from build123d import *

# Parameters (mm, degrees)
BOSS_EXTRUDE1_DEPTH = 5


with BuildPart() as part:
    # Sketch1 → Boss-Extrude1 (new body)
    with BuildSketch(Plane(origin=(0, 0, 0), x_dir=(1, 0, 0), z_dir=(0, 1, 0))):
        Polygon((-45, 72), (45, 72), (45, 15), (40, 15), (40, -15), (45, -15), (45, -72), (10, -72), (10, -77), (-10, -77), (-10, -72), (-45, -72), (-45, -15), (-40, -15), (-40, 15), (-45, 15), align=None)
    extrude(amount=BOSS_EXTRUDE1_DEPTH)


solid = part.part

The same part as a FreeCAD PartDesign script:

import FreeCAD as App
import Part
import Sketcher

V = App.Vector


def add_polygon(sketch, points):
    """Adds a closed chain of lines whose ends are joined by coincident constraints."""
    first, n = sketch.GeometryCount, len(points)
    for a, b in zip(points, points[1:] + points[:1]):
        sketch.addGeometry(Part.LineSegment(App.Vector(*a, 0), App.Vector(*b, 0)), False)
    for i in range(n):
        sketch.addConstraint(Sketcher.Constraint("Coincident", first + i, 2, first + (i + 1) % n, 1))

doc = App.newDocument("Part")
body = doc.addObject("PartDesign::Body", "Body")

sketch1 = doc.addObject("Sketcher::SketchObject", "Sketch")
body.addObject(sketch1)
sketch1.AttachmentSupport = (doc.XZ_Plane, [""])
sketch1.MapMode = "FlatFace"
add_polygon(sketch1, [(45, -72), (-45, -72), (-45, -15), (-40, -15), (-40, 15), (-45, 15), (-45, 72), (-10, 72), (-10, 77), (10, 77), (10, 72), (45, 72), (45, 15), (40, 15), (40, -15), (45, -15)])
sketch1.addConstraint([
    Sketcher.Constraint("Horizontal", 0),
    Sketcher.Constraint("Vertical", 1),
    Sketcher.Constraint("Horizontal", 2),
    Sketcher.Constraint("Vertical", 3),
    Sketcher.Constraint("Horizontal", 4),
    Sketcher.Constraint("Vertical", 5),
    Sketcher.Constraint("Horizontal", 6),
    Sketcher.Constraint("Vertical", 7),
    Sketcher.Constraint("Horizontal", 8),
    Sketcher.Constraint("Vertical", 9),
    Sketcher.Constraint("Horizontal", 10),
    Sketcher.Constraint("Vertical", 11),
    Sketcher.Constraint("Horizontal", 12),
    Sketcher.Constraint("Vertical", 13),
    Sketcher.Constraint("Horizontal", 14),
    Sketcher.Constraint("Vertical", 15),
    Sketcher.Constraint("Symmetric", 0, 2, 10, 2, -1, 1),
    Sketcher.Constraint("Symmetric", 2, 2, 12, 2, -1, 1),
    Sketcher.Constraint("Symmetric", 4, 2, 14, 2, -1, 1),
    Sketcher.Constraint("Symmetric", 6, 2, 9, 2, -2),
    Sketcher.Constraint("Symmetric", 4, 2, 11, 2, -2),
    Sketcher.Constraint("Equal", 14, 7),
    Sketcher.Constraint("DistanceX", 0, 2, 0, 1, 90.0),
    Sketcher.Constraint("DistanceX", 2, 1, 2, 2, 5.0),
    Sketcher.Constraint("DistanceX", 6, 1, 6, 2, 35.0),
    Sketcher.Constraint("DistanceY", 1, 1, 1, 2, 57.0),
    Sketcher.Constraint("DistanceY", 3, 1, 3, 2, 30.0),
])
pad1 = doc.addObject("PartDesign::Pad", "Pad")
body.addObject(pad1)
pad1.Profile = sketch1
pad1.Length = 5
pad1.Reversed = True

doc.recompute()
